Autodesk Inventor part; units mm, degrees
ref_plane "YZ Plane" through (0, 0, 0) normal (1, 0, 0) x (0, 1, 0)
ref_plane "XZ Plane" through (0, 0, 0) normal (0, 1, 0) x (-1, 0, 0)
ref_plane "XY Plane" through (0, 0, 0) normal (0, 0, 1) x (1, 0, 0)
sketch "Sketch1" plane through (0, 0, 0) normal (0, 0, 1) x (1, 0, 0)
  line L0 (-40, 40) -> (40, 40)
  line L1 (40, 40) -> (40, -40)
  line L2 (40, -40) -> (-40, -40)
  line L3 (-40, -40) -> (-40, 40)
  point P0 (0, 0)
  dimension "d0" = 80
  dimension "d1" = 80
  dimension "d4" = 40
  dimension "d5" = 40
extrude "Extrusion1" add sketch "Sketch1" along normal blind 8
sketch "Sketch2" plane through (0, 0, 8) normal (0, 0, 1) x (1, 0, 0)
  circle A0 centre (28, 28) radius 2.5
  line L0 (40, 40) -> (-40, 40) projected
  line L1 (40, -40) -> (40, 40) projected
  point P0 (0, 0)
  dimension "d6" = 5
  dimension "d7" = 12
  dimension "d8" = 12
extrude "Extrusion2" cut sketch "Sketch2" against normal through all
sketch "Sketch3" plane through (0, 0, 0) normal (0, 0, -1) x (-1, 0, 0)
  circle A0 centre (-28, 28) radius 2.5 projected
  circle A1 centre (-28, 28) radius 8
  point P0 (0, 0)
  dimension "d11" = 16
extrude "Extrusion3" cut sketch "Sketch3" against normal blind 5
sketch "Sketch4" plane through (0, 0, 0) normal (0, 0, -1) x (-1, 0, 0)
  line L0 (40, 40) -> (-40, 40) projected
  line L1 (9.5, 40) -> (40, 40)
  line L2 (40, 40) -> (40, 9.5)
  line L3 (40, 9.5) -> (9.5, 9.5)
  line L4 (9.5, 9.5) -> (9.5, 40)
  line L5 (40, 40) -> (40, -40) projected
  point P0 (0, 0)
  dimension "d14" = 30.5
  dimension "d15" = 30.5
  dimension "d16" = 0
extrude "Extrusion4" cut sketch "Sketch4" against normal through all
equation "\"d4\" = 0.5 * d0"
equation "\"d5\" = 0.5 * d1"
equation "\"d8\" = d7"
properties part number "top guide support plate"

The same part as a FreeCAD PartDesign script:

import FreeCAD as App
import Part
import Sketcher

V = App.Vector
Q = App.Units.Quantity

doc = App.newDocument("Part")
body = doc.addObject("PartDesign::Body", "Body")

# Sketch on XY plane
sketch1 = body.newObject("Sketcher::SketchObject", "Sketch")
sketch1.AttachmentSupport = (doc.getObject("XY_Plane"), [""])
sketch1.MapMode = "FlatFace"
sketch1.addGeometry(Part.LineSegment(V(40, 40, 0), V(-40, 40, 0)), False)
sketch1.addGeometry(Part.LineSegment(V(-40, 40, 0), V(-40, -40, 0)), False)
sketch1.addGeometry(Part.LineSegment(V(-40, -40, 0), V(40, -40, 0)), False)
sketch1.addGeometry(Part.LineSegment(V(40, -40, 0), V(40, 40, 0)), False)
sketch1.addConstraint(Sketcher.Constraint("Coincident", 0, 2, 1, 1))
sketch1.addConstraint(Sketcher.Constraint("Coincident", 1, 2, 2, 1))
sketch1.addConstraint(Sketcher.Constraint("Coincident", 2, 2, 3, 1))
sketch1.addConstraint(Sketcher.Constraint("Coincident", 3, 2, 0, 1))
sketch1.addConstraint(Sketcher.Constraint("Horizontal", 0))
sketch1.addConstraint(Sketcher.Constraint("Vertical", 1))
sketch1.addConstraint(Sketcher.Constraint("Horizontal", 2))
sketch1.addConstraint(Sketcher.Constraint("Vertical", 3))
sketch1.addConstraint(Sketcher.Constraint("Symmetric", 0, 2, 2, 2, -1, 1))
sketch1.addConstraint(Sketcher.Constraint("Equal", 2, 1))
sketch1.addConstraint(Sketcher.Constraint("DistanceX", 0, 2, 0, 1, Q("80 mm")))
pad1 = body.newObject("PartDesign::Pad", "Pad")
pad1.Profile = sketch1
pad1.Length = 8

# Sketch on XY plane
sketch2 = body.newObject("Sketcher::SketchObject", "Sketch001")
sketch2.AttachmentSupport = (doc.getObject("XY_Plane"), [""])
sketch2.MapMode = "FlatFace"
sketch2.AttachmentOffset = App.Placement(V(0, 0, 8), App.Rotation())
sketch2.addGeometry(Part.Circle(V(28, 28, 0), V(0, 0, 1), 2.5), False)
sketch2.addConstraint(Sketcher.Constraint("Diameter", 0, Q("5 mm")))
sketch2.addConstraint(Sketcher.Constraint("DistanceX", -1, 1, 0, 3, Q("28 mm")))
sketch2.addConstraint(Sketcher.Constraint("DistanceY", -1, 1, 0, 3, Q("28 mm")))
pocket1 = body.newObject("PartDesign::Pocket", "Pocket")
pocket1.Profile = sketch2
pocket1.Type = "ThroughAll"

# Sketch on XY plane
sketch3 = body.newObject("Sketcher::SketchObject", "Sketch002")
sketch3.AttachmentSupport = (doc.getObject("XY_Plane"), [""])
sketch3.MapMode = "FlatFace"
sketch3.addGeometry(Part.Circle(V(28, 28, 0), V(0, 0, 1), 8), False)
sketch3.addGeometry(Part.Circle(V(28, 28, 0), V(0, 0, 1), 2.5), False)
sketch3.addConstraint(Sketcher.Constraint("Coincident", 1, 3, 0, 3))
sketch3.addConstraint(Sketcher.Constraint("Diameter", 0, Q("16 mm")))
sketch3.addConstraint(Sketcher.Constraint("Diameter", 1, Q("5 mm")))
sketch3.addConstraint(Sketcher.Constraint("DistanceX", -1, 1, 0, 3, Q("28 mm")))
sketch3.addConstraint(Sketcher.Constraint("DistanceY", -1, 1, 0, 3, Q("28 mm")))
pocket2 = body.newObject("PartDesign::Pocket", "Pocket001")
pocket2.Profile = sketch3
pocket2.Length = 5
pocket2.Reversed = True

# Sketch on XY plane
sketch4 = body.newObject("Sketcher::SketchObject", "Sketch003")
sketch4.AttachmentSupport = (doc.getObject("XY_Plane"), [""])
sketch4.MapMode = "FlatFace"
sketch4.addGeometry(Part.LineSegment(V(-40, 9.5, 0), V(-40, 40, 0)), False)
sketch4.addGeometry(Part.LineSegment(V(-40, 40, 0), V(-9.5, 40, 0)), False)
sketch4.addGeometry(Part.LineSegment(V(-9.5, 40, 0), V(-9.5, 9.5, 0)), False)
sketch4.addGeometry(Part.LineSegment(V(-9.5, 9.5, 0), V(-40, 9.5, 0)), False)
sketch4.addConstraint(Sketcher.Constraint("Coincident", 0, 2, 1, 1))
sketch4.addConstraint(Sketcher.Constraint("Coincident", 1, 2, 2, 1))
sketch4.addConstraint(Sketcher.Constraint("Coincident", 2, 2, 3, 1))
sketch4.addConstraint(Sketcher.Constraint("Coincident", 3, 2, 0, 1))
sketch4.addConstraint(Sketcher.Constraint("Vertical", 0))
sketch4.addConstraint(Sketcher.Constraint("Horizontal", 1))
sketch4.addConstraint(Sketcher.Constraint("Vertical", 2))
sketch4.addConstraint(Sketcher.Constraint("Horizontal", 3))
sketch4.addConstraint(Sketcher.Constraint("Equal", 3, 0))
sketch4.addConstraint(Sketcher.Constraint("DistanceX", 1, 1, 1, 2, Q("30.5 mm")))
sketch4.addConstraint(Sketcher.Constraint("DistanceX", 0, 2, -1, 1, Q("40 mm")))
sketch4.addConstraint(Sketcher.Constraint("DistanceY", -1, 1, 0, 2, Q("40 mm")))
pocket3 = body.newObject("PartDesign::Pocket", "Pocket002")
pocket3.Profile = sketch4
pocket3.Type = "ThroughAll"
pocket3.Reversed = True

doc.recompute()
